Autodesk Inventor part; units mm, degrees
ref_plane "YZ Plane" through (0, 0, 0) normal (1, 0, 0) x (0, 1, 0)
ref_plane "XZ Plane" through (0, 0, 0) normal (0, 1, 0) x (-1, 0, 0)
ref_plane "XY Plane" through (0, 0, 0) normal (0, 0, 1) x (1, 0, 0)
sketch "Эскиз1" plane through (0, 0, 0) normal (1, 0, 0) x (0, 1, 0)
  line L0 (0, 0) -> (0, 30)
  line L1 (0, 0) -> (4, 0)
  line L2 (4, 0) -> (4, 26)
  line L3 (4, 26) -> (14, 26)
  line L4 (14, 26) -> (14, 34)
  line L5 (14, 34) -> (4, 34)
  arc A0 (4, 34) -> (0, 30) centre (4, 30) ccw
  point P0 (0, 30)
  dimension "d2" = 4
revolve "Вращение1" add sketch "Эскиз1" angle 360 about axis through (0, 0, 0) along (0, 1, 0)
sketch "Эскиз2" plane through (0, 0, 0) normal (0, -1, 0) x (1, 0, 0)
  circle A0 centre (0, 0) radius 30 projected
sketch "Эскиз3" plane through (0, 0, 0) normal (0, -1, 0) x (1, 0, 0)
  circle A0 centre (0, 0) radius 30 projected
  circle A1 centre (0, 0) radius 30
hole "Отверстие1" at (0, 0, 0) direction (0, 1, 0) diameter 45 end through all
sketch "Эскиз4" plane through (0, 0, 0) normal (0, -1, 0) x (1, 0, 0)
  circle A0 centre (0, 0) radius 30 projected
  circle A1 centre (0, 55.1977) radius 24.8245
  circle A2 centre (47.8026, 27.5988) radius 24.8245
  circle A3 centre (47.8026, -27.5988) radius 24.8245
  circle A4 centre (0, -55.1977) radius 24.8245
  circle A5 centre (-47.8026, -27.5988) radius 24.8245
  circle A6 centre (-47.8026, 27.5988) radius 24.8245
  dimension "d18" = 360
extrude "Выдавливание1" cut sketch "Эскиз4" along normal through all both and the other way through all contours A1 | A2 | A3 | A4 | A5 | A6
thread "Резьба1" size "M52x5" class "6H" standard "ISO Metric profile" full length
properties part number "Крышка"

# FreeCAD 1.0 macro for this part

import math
import FreeCAD as App
import Part
import Sketcher
from FreeCAD import Vector

doc = App.newDocument("Part")
body = doc.addObject("PartDesign::Body", "Body")

sketch1 = body.newObject("Sketcher::SketchObject", "Sketch")
sketch1.AttachmentSupport = (doc.getObject("YZ_Plane"), [""])
sketch1.MapMode = "FlatFace"
sketch1.addGeometry(Part.LineSegment(Vector(0, 30, 0), Vector(0, 0, 0)), False)
sketch1.addGeometry(Part.LineSegment(Vector(0, 0, 0), Vector(4, 0, 0)), False)
sketch1.addGeometry(Part.LineSegment(Vector(4, 0, 0), Vector(4, 26, 0)), False)
sketch1.addGeometry(Part.LineSegment(Vector(4, 26, 0), Vector(14, 26, 0)), False)
sketch1.addGeometry(Part.LineSegment(Vector(14, 26, 0), Vector(14, 34, 0)), False)
sketch1.addGeometry(Part.LineSegment(Vector(14, 34, 0), Vector(4, 34, 0)), False)
sketch1.addGeometry(Part.ArcOfCircle(Part.Circle(Vector(4, 30, 0), Vector(0, 0, 1), 4), math.radians(90), math.radians(180)), False)
sketch1.addConstraint(Sketcher.Constraint("Coincident", 0, 2, 1, 1))
sketch1.addConstraint(Sketcher.Constraint("Coincident", 1, 2, 2, 1))
sketch1.addConstraint(Sketcher.Constraint("Coincident", 2, 2, 3, 1))
sketch1.addConstraint(Sketcher.Constraint("Coincident", 3, 2, 4, 1))
sketch1.addConstraint(Sketcher.Constraint("Coincident", 4, 2, 5, 1))
sketch1.addConstraint(Sketcher.Constraint("Tangent", 5, 2, 6, 1))
sketch1.addConstraint(Sketcher.Constraint("Tangent", 6, 2, 0, 1))
sketch1.addConstraint(Sketcher.Constraint("Vertical", 0))
sketch1.addConstraint(Sketcher.Constraint("Horizontal", 1))
sketch1.addConstraint(Sketcher.Constraint("Vertical", 2))
sketch1.addConstraint(Sketcher.Constraint("Horizontal", 3))
sketch1.addConstraint(Sketcher.Constraint("Vertical", 4))
sketch1.addConstraint(Sketcher.Constraint("Horizontal", 5))
sketch1.addConstraint(Sketcher.Constraint("Coincident", 0, 2, -1, 1))
sketch1.addConstraint(Sketcher.Constraint("Vertical", 6, 3, 1, 2))
sketch1.addConstraint(Sketcher.Constraint("Radius", 6, 4.0))
sketch1.addConstraint(Sketcher.Constraint("DistanceY", 2, 2, 6, 3, 4.0))
sketch1.addConstraint(Sketcher.Constraint("DistanceX", 3, 1, 3, 2, 10.0))
sketch1.addConstraint(Sketcher.Constraint("DistanceY", 0, 2, 0, 1, 30.0))
revolution = body.newObject("PartDesign::Revolution", "Revolution")
revolution.Profile = sketch1
revolution.ReferenceAxis = (sketch1, ["H_Axis"])
revolution.Angle = 360

sketch2 = body.newObject("Sketcher::SketchObject", "Sketch001")
sketch2.AttachmentSupport = (doc.getObject("XZ_Plane"), [""])
sketch2.MapMode = "FlatFace"
sketch2.addGeometry(Part.Circle(Vector(0, 0, 0), Vector(0, 0, 1), 22), False)
sketch2.addConstraint(Sketcher.Constraint("Coincident", 0, 3, -1, 1))
sketch2.addConstraint(Sketcher.Constraint("Diameter", 0, 45.0))
doc.recompute()
hole = body.newObject("PartDesign::Hole", "Hole")
hole.Profile = sketch2
hole.ThreadType = "None"
hole.Diameter = 45
hole.DepthType = "ThroughAll"

sketch3 = body.newObject("Sketcher::SketchObject", "Sketch002")
sketch3.AttachmentSupport = (doc.getObject("XZ_Plane"), [""])
sketch3.MapMode = "FlatFace"
sketch3.addGeometry(Part.Circle(Vector(0, 55, 0), Vector(0, 0, 1), 25), False)
sketch3.addGeometry(Part.Circle(Vector(48, 28, 0), Vector(0, 0, 1), 25), False)
sketch3.addGeometry(Part.Circle(Vector(48, -28, 0), Vector(0, 0, 1), 25), False)
sketch3.addGeometry(Part.Circle(Vector(0, -55, 0), Vector(0, 0, 1), 25), False)
sketch3.addGeometry(Part.Circle(Vector(-48, -28, 0), Vector(0, 0, 1), 25), False)
sketch3.addGeometry(Part.Circle(Vector(-48, 28, 0), Vector(0, 0, 1), 25), False)
sketch3.addConstraint(Sketcher.Constraint("Equal", 0, 1))
sketch3.addConstraint(Sketcher.Constraint("Equal", 1, 2))
sketch3.addConstraint(Sketcher.Constraint("Equal", 2, 3))
sketch3.addConstraint(Sketcher.Constraint("Equal", 3, 4))
sketch3.addConstraint(Sketcher.Constraint("Equal", 4, 5))
sketch3.addConstraint(Sketcher.Constraint("Symmetric", 0, 3, 3, 3, -1, 1))
sketch3.addConstraint(Sketcher.Constraint("Symmetric", 1, 3, 4, 3, -1, 1))
sketch3.addConstraint(Sketcher.Constraint("Symmetric", 2, 3, 5, 3, -1, 1))
sketch3.addConstraint(Sketcher.Constraint("Symmetric", 2, 3, 4, 3, -2))
sketch3.addConstraint(Sketcher.Constraint("PointOnObject", 0, 3, -2))
sketch3.addConstraint(Sketcher.Constraint("Diameter", 0, 49.649))
sketch3.addConstraint(Sketcher.Constraint("DistanceY", 1, 3, 0, 3, 27.599))
sketch3.addConstraint(Sketcher.Constraint("DistanceY", -1, 1, 0, 3, 55.1977))
sketch3.addConstraint(Sketcher.Constraint("DistanceX", -1, 1, 1, 3, 47.8026))
pocket1 = body.newObject("PartDesign::Pocket", "Pocket")
pocket1.Profile = sketch3
pocket1.Type = "ThroughAll"
pocket1.Midplane = True

doc.recompute()
